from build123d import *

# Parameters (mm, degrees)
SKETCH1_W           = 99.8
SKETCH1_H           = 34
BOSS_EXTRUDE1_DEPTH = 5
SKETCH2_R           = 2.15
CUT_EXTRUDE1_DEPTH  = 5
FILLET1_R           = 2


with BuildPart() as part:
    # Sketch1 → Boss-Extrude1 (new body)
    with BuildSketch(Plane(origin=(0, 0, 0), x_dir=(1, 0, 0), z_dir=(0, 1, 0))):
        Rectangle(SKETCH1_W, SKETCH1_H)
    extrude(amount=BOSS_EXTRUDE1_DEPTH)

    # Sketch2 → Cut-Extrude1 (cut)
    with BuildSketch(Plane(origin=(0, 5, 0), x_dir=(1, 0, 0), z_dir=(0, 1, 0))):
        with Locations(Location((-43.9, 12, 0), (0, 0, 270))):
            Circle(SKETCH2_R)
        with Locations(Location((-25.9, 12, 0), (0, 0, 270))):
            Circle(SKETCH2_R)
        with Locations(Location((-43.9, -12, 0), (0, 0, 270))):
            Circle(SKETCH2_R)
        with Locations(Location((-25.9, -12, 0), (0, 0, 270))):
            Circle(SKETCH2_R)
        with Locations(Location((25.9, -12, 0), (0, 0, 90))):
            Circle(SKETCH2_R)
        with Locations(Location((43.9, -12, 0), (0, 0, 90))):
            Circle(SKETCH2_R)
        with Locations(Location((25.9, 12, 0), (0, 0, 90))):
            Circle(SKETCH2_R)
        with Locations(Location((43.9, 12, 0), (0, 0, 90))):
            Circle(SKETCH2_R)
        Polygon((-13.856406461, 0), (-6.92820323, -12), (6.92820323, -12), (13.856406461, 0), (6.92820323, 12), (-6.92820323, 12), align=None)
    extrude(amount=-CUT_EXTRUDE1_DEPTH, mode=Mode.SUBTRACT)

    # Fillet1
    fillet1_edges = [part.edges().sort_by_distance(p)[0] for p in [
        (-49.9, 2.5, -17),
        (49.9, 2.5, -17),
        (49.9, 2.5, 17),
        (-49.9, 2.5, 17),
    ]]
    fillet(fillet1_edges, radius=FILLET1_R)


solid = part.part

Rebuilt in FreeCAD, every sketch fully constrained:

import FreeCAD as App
import Part
import Sketcher

V = App.Vector
Q = App.Units.Quantity


def edges_at(feature, points):
    """Names of the edges that pass closest to the given points."""
    edges = feature.Shape.Edges
    near = lambda p: min(range(len(edges)), key=lambda i: edges[i].distToShape(Part.Vertex(*p))[0])
    return sorted({f"Edge{near(p) + 1}" for p in points})


def add_polygon(sketch, points):
    """Adds a closed chain of lines whose ends are joined by coincident constraints."""
    first, n = sketch.GeometryCount, len(points)
    for a, b in zip(points, points[1:] + points[:1]):
        sketch.addGeometry(Part.LineSegment(App.Vector(*a, 0), App.Vector(*b, 0)), False)
    for i in range(n):
        sketch.addConstraint(Sketcher.Constraint("Coincident", first + i, 2, first + (i + 1) % n, 1))

doc = App.newDocument("Part")
body = doc.addObject("PartDesign::Body", "Body")

# Sketch on XZ plane
sketch1 = doc.addObject("Sketcher::SketchObject", "Sketch")
body.addObject(sketch1)
sketch1.AttachmentSupport = (doc.XZ_Plane, [""])
sketch1.MapMode = "FlatFace"
add_polygon(sketch1, [(-50, -17), (-50, 17), (50, 17), (50, -17)])  # lines 0-3
sketch1.addConstraint([
    Sketcher.Constraint("Vertical", 0),
    Sketcher.Constraint("Horizontal", 1),
    Sketcher.Constraint("Vertical", 2),
    Sketcher.Constraint("Horizontal", 3),
    Sketcher.Constraint("Symmetric", 0, 2, 2, 2, -1, 1),
    Sketcher.Constraint("DistanceY", 0, 1, 0, 2, Q("34 mm")),
    Sketcher.Constraint("DistanceX", 1, 1, 1, 2, Q("99.8 mm")),
])
pad1 = doc.addObject("PartDesign::Pad", "Pad")
body.addObject(pad1)
pad1.Profile = sketch1
pad1.Length = 5
pad1.Reversed = True

# Sketch on XZ plane
sketch2 = doc.addObject("Sketcher::SketchObject", "Sketch001")
body.addObject(sketch2)
sketch2.AttachmentSupport = (doc.XZ_Plane, [""])
sketch2.MapMode = "FlatFace"
sketch2.AttachmentOffset = App.Placement(V(0, 0, -5), App.Rotation())
sketch2.addGeometry(Part.Circle(V(-43.9, -12, 0), V(0, 0, 1), 2.1), False)  # 0
sketch2.addGeometry(Part.Circle(V(-25.9, -12, 0), V(0, 0, 1), 2.1), False)  # 1
sketch2.addGeometry(Part.Circle(V(-43.9, 12, 0), V(0, 0, 1), 2.1), False)  # 2
sketch2.addGeometry(Part.Circle(V(-25.9, 12, 0), V(0, 0, 1), 2.1), False)  # 3
sketch2.addGeometry(Part.Circle(V(25.9, 12, 0), V(0, 0, 1), 2.1), False)  # 4
sketch2.addGeometry(Part.Circle(V(43.9, 12, 0), V(0, 0, 1), 2.1), False)  # 5
sketch2.addGeometry(Part.Circle(V(25.9, -12, 0), V(0, 0, 1), 2.1), False)  # 6
sketch2.addGeometry(Part.Circle(V(43.9, -12, 0), V(0, 0, 1), 2.1), False)  # 7
add_polygon(sketch2, [(-13.9, 0), (-6.9, 12), (6.9, 12), (13.9, 0), (6.9, -12), (-6.9, -12)])  # lines 8-13
sketch2.addConstraint([
    Sketcher.Constraint("Horizontal", 9),
    Sketcher.Constraint("Horizontal", 12),
    Sketcher.Constraint("Equal", 0, 1),
    Sketcher.Constraint("Equal", 1, 2),
    Sketcher.Constraint("Equal", 2, 3),
    Sketcher.Constraint("Equal", 3, 4),
    Sketcher.Constraint("Equal", 4, 5),
    Sketcher.Constraint("Equal", 5, 6),
    Sketcher.Constraint("Equal", 6, 7),
    Sketcher.Constraint("Symmetric", 1, 3, 4, 3, -1, 1),
    Sketcher.Constraint("Symmetric", 0, 3, 5, 3, -1, 1),
    Sketcher.Constraint("Symmetric", 3, 3, 6, 3, -1, 1),
    Sketcher.Constraint("Symmetric", 2, 3, 7, 3, -1, 1),
    Sketcher.Constraint("Symmetric", 8, 2, 11, 2, -1, 1),
    Sketcher.Constraint("Symmetric", 10, 2, 13, 2, -1, 1),
    Sketcher.Constraint("Symmetric", 3, 3, 4, 3, -2),
    Sketcher.Constraint("Symmetric", 2, 3, 5, 3, -2),
    Sketcher.Constraint("PointOnObject", 10, 2, -1),
    Sketcher.Constraint("Parallel", 10, 13),
    Sketcher.Constraint("Horizontal", 0, 3, 1, 3),
    Sketcher.Constraint("Horizontal", 5, 3, 8, 2),
    Sketcher.Constraint("Vertical", 9, 2, 11, 2),
    Sketcher.Constraint("Diameter", 0, Q("4.3 mm")),
    Sketcher.Constraint("Angle", 8, Q("60 deg")),
    Sketcher.Constraint("DistanceY", 0, 3, -1, 1, Q("12 mm")),
    Sketcher.Constraint("DistanceX", 0, 3, 1, 3, Q("18 mm")),
    Sketcher.Constraint("DistanceX", 0, 3, -1, 1, Q("43.9 mm")),
    Sketcher.Constraint("DistanceX", 9, 1, 9, 2, Q("13.856406 mm")),
])
pocket1 = doc.addObject("PartDesign::Pocket", "Pocket")
body.addObject(pocket1)
pocket1.Profile = sketch2
pocket1.Length = 5
pocket1.Reversed = True
doc.recompute()

fillet = doc.addObject("PartDesign::Fillet", "Fillet")
body.addObject(fillet)
fillet.Base = (pocket1, edges_at(pocket1, [
    (-49.9, 2.5, -17),
    (49.9, 2.5, -17),
    (49.9, 2.5, 17),
    (-49.9, 2.5, 17),
]))
fillet.Radius = 2

doc.recompute()
